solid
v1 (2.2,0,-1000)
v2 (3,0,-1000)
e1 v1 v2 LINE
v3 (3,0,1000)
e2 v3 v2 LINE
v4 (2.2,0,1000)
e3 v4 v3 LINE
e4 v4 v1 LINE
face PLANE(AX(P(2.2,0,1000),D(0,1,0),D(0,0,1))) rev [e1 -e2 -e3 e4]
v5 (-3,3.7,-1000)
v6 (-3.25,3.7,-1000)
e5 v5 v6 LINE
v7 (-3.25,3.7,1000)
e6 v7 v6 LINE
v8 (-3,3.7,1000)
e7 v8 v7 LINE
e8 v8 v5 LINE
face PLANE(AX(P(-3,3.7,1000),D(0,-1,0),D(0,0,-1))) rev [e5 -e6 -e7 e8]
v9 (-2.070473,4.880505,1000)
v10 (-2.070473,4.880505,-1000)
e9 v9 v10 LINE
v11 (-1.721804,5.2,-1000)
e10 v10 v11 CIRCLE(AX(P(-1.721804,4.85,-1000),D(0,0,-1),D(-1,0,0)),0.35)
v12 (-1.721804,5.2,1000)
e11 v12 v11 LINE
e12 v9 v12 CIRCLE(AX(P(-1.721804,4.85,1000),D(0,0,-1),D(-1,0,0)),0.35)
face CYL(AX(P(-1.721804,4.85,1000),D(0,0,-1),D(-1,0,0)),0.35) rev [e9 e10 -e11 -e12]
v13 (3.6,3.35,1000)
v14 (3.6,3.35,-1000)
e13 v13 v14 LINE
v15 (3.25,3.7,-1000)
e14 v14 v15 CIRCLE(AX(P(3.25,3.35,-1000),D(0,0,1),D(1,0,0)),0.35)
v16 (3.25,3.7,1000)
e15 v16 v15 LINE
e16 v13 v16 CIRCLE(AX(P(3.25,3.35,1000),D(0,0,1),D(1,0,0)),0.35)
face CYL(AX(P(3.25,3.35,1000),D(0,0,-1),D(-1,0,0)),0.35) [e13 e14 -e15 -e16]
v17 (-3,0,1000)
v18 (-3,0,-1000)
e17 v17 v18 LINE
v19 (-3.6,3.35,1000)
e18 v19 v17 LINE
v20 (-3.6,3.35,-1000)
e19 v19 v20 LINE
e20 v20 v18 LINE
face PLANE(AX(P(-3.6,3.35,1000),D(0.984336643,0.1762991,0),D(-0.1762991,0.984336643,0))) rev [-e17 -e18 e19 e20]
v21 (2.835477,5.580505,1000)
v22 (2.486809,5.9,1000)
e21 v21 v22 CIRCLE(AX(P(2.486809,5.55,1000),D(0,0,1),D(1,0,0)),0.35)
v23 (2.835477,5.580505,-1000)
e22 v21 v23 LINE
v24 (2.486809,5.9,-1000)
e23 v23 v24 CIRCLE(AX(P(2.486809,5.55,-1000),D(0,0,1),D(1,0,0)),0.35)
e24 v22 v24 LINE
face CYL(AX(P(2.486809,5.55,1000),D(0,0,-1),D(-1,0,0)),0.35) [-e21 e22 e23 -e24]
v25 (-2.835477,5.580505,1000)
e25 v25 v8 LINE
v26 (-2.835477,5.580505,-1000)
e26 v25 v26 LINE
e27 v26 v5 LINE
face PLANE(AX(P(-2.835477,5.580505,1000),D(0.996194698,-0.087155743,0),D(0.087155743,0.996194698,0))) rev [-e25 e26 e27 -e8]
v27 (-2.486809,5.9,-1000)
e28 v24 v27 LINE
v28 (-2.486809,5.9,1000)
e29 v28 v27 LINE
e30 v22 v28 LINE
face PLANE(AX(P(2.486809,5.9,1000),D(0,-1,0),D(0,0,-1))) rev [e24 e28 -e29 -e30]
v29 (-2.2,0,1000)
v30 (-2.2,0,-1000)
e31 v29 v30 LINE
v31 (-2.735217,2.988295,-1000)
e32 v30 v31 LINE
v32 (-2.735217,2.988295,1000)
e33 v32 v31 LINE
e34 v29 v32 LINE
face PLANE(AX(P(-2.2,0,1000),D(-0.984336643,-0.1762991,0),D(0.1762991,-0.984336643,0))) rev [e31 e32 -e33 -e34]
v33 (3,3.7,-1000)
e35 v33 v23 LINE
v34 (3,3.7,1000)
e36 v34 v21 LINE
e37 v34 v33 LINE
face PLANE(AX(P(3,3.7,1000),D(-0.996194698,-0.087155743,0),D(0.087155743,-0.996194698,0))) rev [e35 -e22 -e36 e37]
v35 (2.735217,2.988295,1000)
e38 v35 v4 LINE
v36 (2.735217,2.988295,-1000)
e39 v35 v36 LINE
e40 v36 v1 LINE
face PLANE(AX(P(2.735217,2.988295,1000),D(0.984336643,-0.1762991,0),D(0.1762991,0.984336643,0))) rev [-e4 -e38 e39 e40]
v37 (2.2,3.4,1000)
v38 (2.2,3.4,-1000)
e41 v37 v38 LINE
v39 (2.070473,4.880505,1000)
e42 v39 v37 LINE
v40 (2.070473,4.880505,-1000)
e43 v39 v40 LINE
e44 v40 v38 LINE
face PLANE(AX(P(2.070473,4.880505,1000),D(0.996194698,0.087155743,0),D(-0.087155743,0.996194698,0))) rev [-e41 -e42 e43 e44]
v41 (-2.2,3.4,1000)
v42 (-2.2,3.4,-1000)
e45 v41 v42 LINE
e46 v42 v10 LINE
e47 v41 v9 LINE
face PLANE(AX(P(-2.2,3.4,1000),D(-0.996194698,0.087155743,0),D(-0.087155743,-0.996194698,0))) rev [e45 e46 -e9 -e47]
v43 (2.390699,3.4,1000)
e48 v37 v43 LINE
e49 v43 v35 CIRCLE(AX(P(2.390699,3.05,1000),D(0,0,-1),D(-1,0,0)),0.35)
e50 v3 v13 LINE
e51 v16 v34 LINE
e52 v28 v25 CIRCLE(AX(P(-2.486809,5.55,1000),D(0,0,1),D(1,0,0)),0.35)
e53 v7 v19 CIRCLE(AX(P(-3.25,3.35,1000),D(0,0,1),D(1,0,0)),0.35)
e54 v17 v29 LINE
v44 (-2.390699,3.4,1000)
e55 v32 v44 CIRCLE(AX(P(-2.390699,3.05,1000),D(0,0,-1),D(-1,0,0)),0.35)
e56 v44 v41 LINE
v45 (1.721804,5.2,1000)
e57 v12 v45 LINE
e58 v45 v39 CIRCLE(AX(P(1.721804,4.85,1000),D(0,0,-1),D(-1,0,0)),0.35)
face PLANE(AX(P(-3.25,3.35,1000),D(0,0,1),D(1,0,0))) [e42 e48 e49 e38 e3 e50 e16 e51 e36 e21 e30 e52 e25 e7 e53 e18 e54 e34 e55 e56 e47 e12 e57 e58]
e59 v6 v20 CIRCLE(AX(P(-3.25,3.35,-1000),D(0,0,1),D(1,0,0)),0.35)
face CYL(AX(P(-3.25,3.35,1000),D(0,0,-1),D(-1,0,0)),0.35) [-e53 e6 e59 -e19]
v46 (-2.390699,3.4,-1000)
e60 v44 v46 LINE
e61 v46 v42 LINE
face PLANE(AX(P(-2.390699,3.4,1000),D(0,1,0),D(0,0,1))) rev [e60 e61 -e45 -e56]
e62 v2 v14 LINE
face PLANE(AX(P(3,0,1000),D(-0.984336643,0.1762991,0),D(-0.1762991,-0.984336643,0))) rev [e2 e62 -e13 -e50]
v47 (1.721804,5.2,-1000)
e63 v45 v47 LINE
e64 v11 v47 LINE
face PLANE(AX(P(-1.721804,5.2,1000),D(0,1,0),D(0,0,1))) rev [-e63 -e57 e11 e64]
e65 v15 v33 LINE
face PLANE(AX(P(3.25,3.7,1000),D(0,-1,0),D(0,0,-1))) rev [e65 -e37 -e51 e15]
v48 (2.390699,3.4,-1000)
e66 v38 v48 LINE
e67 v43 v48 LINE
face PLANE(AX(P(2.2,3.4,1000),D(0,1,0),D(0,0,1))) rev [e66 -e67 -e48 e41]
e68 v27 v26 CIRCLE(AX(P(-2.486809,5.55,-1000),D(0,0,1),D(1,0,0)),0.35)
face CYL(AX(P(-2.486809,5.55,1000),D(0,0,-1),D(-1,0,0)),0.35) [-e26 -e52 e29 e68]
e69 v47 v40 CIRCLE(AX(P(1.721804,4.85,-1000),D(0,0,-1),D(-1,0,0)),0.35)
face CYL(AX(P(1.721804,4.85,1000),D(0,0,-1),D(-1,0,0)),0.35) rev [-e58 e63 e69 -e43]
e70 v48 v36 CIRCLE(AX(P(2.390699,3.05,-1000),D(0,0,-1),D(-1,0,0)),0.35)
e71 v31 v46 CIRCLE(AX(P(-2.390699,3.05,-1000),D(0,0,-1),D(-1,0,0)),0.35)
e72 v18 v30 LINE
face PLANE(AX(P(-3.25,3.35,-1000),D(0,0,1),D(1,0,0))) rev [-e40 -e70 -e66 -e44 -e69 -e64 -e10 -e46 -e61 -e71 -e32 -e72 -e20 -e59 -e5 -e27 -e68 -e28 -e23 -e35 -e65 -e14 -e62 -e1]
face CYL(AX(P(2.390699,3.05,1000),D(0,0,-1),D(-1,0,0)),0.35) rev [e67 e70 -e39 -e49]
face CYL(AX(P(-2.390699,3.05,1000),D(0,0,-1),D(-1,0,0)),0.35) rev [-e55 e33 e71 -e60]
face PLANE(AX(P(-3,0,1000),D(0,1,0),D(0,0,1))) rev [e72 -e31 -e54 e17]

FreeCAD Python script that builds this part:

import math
import FreeCAD as App
import Part
import Sketcher

V = App.Vector
Q = App.Units.Quantity

doc = App.newDocument("Part")
body = doc.addObject("PartDesign::Body", "Body")

# Sketch on XY plane
sketch1 = body.newObject("Sketcher::SketchObject", "Sketch")
sketch1.AttachmentSupport = (doc.getObject("XY_Plane"), [""])
sketch1.MapMode = "FlatFace"
sketch1.addGeometry(Part.LineSegment(V(-3.6, 3.35, 0), V(-3, 0, 0)), False)
sketch1.addGeometry(Part.LineSegment(V(-3, 0, 0), V(-2.2, 0, 0)), False)
sketch1.addGeometry(Part.LineSegment(V(-2.2, 0, 0), V(-2.735217, 2.988295, 0)), False)
sketch1.addGeometry(Part.ArcOfCircle(Part.Circle(V(-2.390699, 3.05, 0), V(0, 0, 1), 0.35), math.radians(90), math.radians(190.154267)), False)
sketch1.addGeometry(Part.LineSegment(V(-2.390699, 3.4, 0), V(-2.2, 3.4, 0)), False)
sketch1.addGeometry(Part.LineSegment(V(-2.2, 3.4, 0), V(-2.070473, 4.880505, 0)), False)
sketch1.addGeometry(Part.ArcOfCircle(Part.Circle(V(-1.721804, 4.85, 0), V(0, 0, 1), 0.35), math.radians(90), math.radians(175)), False)
sketch1.addGeometry(Part.LineSegment(V(-1.721804, 5.2, 0), V(1.721804, 5.2, 0)), False)
sketch1.addGeometry(Part.ArcOfCircle(Part.Circle(V(1.721804, 4.85, 0), V(0, 0, 1), 0.35), math.radians(5), math.radians(90)), False)
sketch1.addGeometry(Part.LineSegment(V(2.070473, 4.880505, 0), V(2.2, 3.4, 0)), False)
sketch1.addGeometry(Part.LineSegment(V(2.2, 3.4, 0), V(2.390699, 3.4, 0)), False)
sketch1.addGeometry(Part.ArcOfCircle(Part.Circle(V(2.390699, 3.05, 0), V(0, 0, 1), 0.35), math.radians(-10.154267), math.radians(90)), False)
sketch1.addGeometry(Part.LineSegment(V(2.735217, 2.988295, 0), V(2.2, 0, 0)), False)
sketch1.addGeometry(Part.LineSegment(V(2.2, 0, 0), V(3, 0, 0)), False)
sketch1.addGeometry(Part.LineSegment(V(3, 0, 0), V(3.6, 3.35, 0)), False)
sketch1.addGeometry(Part.ArcOfCircle(Part.Circle(V(3.25, 3.35, 0), V(0, 0, 1), 0.35), math.radians(0), math.radians(90)), False)
sketch1.addGeometry(Part.LineSegment(V(3.25, 3.7, 0), V(3, 3.7, 0)), False)
sketch1.addGeometry(Part.LineSegment(V(3, 3.7, 0), V(2.835477, 5.580505, 0)), False)
sketch1.addGeometry(Part.ArcOfCircle(Part.Circle(V(2.486809, 5.55, 0), V(0, 0, 1), 0.35), math.radians(5), math.radians(90)), False)
sketch1.addGeometry(Part.LineSegment(V(2.486809, 5.9, 0), V(-2.486809, 5.9, 0)), False)
sketch1.addGeometry(Part.ArcOfCircle(Part.Circle(V(-2.486809, 5.55, 0), V(0, 0, 1), 0.35), math.radians(90), math.radians(175)), False)
sketch1.addGeometry(Part.LineSegment(V(-2.835477, 5.580505, 0), V(-3, 3.7, 0)), False)
sketch1.addGeometry(Part.LineSegment(V(-3, 3.7, 0), V(-3.25, 3.7, 0)), False)
sketch1.addGeometry(Part.ArcOfCircle(Part.Circle(V(-3.25, 3.35, 0), V(0, 0, 1), 0.35), math.radians(90), math.radians(180)), False)
sketch1.addConstraint(Sketcher.Constraint("Coincident", 0, 2, 1, 1))
sketch1.addConstraint(Sketcher.Constraint("Coincident", 1, 2, 2, 1))
sketch1.addConstraint(Sketcher.Constraint("Tangent", 2, 2, 3, 2))
sketch1.addConstraint(Sketcher.Constraint("Tangent", 3, 1, 4, 1))
sketch1.addConstraint(Sketcher.Constraint("Coincident", 4, 2, 5, 1))
sketch1.addConstraint(Sketcher.Constraint("Tangent", 5, 2, 6, 2))
sketch1.addConstraint(Sketcher.Constraint("Tangent", 6, 1, 7, 1))
sketch1.addConstraint(Sketcher.Constraint("Tangent", 7, 2, 8, 2))
sketch1.addConstraint(Sketcher.Constraint("Tangent", 8, 1, 9, 1))
sketch1.addConstraint(Sketcher.Constraint("Coincident", 9, 2, 10, 1))
sketch1.addConstraint(Sketcher.Constraint("Tangent", 10, 2, 11, 2))
sketch1.addConstraint(Sketcher.Constraint("Tangent", 11, 1, 12, 1))
sketch1.addConstraint(Sketcher.Constraint("Coincident", 12, 2, 13, 1))
sketch1.addConstraint(Sketcher.Constraint("Coincident", 13, 2, 14, 1))
sketch1.addConstraint(Sketcher.Constraint("Coincident", 14, 2, 15, 1))
sketch1.addConstraint(Sketcher.Constraint("Tangent", 15, 2, 16, 1))
sketch1.addConstraint(Sketcher.Constraint("Coincident", 16, 2, 17, 1))
sketch1.addConstraint(Sketcher.Constraint("Tangent", 17, 2, 18, 1))
sketch1.addConstraint(Sketcher.Constraint("Tangent", 18, 2, 19, 1))
sketch1.addConstraint(Sketcher.Constraint("Tangent", 19, 2, 20, 1))
sketch1.addConstraint(Sketcher.Constraint("Tangent", 20, 2, 21, 1))
sketch1.addConstraint(Sketcher.Constraint("Coincident", 21, 2, 22, 1))
sketch1.addConstraint(Sketcher.Constraint("Tangent", 22, 2, 23, 1))
sketch1.addConstraint(Sketcher.Constraint("Coincident", 23, 2, 0, 1))
sketch1.addConstraint(Sketcher.Constraint("Horizontal", 1))
sketch1.addConstraint(Sketcher.Constraint("Horizontal", 4))
sketch1.addConstraint(Sketcher.Constraint("Horizontal", 7))
sketch1.addConstraint(Sketcher.Constraint("Horizontal", 10))
sketch1.addConstraint(Sketcher.Constraint("Horizontal", 13))
sketch1.addConstraint(Sketcher.Constraint("Horizontal", 16))
sketch1.addConstraint(Sketcher.Constraint("Horizontal", 19))
sketch1.addConstraint(Sketcher.Constraint("Horizontal", 22))
sketch1.addConstraint(Sketcher.Constraint("Equal", 3, 6))
sketch1.addConstraint(Sketcher.Constraint("Equal", 6, 8))
sketch1.addConstraint(Sketcher.Constraint("Equal", 8, 11))
sketch1.addConstraint(Sketcher.Constraint("Equal", 11, 15))
sketch1.addConstraint(Sketcher.Constraint("Equal", 15, 18))
sketch1.addConstraint(Sketcher.Constraint("Equal", 18, 20))
sketch1.addConstraint(Sketcher.Constraint("Equal", 20, 23))
sketch1.addConstraint(Sketcher.Constraint("Symmetric", 1, 2, 12, 2, -1, 1))
sketch1.addConstraint(Sketcher.Constraint("Symmetric", 3, 3, 11, 3, -2))
sketch1.addConstraint(Sketcher.Constraint("Symmetric", 15, 3, 23, 3, -2))
sketch1.addConstraint(Sketcher.Constraint("Symmetric", 5, 2, 8, 1, -2))
sketch1.addConstraint(Sketcher.Constraint("Symmetric", 0, 2, 13, 2, -2))
sketch1.addConstraint(Sketcher.Constraint("Symmetric", 17, 2, 20, 2, -2))
sketch1.addConstraint(Sketcher.Constraint("Parallel", 0, 2))
sketch1.addConstraint(Sketcher.Constraint("Parallel", 12, 14))
sketch1.addConstraint(Sketcher.Constraint("Parallel", 9, 17))
sketch1.addConstraint(Sketcher.Constraint("Horizontal", 23, 3, 14, 2))
sketch1.addConstraint(Sketcher.Constraint("Vertical", 1, 2, 4, 2))
sketch1.addConstraint(Sketcher.Constraint("Vertical", 13, 2, 16, 2))
sketch1.addConstraint(Sketcher.Constraint("Angle", 5, Q("85 deg")))
sketch1.addConstraint(Sketcher.Constraint("Radius", 3, 0.35))
sketch1.addConstraint(Sketcher.Constraint("DistanceX", 1, 1, 1, 2, 0.8))
sketch1.addConstraint(Sketcher.Constraint("DistanceX", 0, 2, -1, 1, 3.0))
sketch1.addConstraint(Sketcher.Constraint("DistanceX", 16, 2, 16, 1, 0.25))
sketch1.addConstraint(Sketcher.Constraint("DistanceY", -1, 1, 3, 1, 3.4))
sketch1.addConstraint(Sketcher.Constraint("DistanceY", -1, 1, 6, 1, 5.2))
sketch1.addConstraint(Sketcher.Constraint("DistanceY", -1, 1, 15, 2, 3.7))
sketch1.addConstraint(Sketcher.Constraint("DistanceY", -1, 1, 18, 2, 5.9))
pad1 = body.newObject("PartDesign::Pad", "Pad")
pad1.Profile = sketch1
pad1.Type = "TwoLengths"
pad1.Length = 1000
pad1.Length2 = 1000

doc.recompute()
